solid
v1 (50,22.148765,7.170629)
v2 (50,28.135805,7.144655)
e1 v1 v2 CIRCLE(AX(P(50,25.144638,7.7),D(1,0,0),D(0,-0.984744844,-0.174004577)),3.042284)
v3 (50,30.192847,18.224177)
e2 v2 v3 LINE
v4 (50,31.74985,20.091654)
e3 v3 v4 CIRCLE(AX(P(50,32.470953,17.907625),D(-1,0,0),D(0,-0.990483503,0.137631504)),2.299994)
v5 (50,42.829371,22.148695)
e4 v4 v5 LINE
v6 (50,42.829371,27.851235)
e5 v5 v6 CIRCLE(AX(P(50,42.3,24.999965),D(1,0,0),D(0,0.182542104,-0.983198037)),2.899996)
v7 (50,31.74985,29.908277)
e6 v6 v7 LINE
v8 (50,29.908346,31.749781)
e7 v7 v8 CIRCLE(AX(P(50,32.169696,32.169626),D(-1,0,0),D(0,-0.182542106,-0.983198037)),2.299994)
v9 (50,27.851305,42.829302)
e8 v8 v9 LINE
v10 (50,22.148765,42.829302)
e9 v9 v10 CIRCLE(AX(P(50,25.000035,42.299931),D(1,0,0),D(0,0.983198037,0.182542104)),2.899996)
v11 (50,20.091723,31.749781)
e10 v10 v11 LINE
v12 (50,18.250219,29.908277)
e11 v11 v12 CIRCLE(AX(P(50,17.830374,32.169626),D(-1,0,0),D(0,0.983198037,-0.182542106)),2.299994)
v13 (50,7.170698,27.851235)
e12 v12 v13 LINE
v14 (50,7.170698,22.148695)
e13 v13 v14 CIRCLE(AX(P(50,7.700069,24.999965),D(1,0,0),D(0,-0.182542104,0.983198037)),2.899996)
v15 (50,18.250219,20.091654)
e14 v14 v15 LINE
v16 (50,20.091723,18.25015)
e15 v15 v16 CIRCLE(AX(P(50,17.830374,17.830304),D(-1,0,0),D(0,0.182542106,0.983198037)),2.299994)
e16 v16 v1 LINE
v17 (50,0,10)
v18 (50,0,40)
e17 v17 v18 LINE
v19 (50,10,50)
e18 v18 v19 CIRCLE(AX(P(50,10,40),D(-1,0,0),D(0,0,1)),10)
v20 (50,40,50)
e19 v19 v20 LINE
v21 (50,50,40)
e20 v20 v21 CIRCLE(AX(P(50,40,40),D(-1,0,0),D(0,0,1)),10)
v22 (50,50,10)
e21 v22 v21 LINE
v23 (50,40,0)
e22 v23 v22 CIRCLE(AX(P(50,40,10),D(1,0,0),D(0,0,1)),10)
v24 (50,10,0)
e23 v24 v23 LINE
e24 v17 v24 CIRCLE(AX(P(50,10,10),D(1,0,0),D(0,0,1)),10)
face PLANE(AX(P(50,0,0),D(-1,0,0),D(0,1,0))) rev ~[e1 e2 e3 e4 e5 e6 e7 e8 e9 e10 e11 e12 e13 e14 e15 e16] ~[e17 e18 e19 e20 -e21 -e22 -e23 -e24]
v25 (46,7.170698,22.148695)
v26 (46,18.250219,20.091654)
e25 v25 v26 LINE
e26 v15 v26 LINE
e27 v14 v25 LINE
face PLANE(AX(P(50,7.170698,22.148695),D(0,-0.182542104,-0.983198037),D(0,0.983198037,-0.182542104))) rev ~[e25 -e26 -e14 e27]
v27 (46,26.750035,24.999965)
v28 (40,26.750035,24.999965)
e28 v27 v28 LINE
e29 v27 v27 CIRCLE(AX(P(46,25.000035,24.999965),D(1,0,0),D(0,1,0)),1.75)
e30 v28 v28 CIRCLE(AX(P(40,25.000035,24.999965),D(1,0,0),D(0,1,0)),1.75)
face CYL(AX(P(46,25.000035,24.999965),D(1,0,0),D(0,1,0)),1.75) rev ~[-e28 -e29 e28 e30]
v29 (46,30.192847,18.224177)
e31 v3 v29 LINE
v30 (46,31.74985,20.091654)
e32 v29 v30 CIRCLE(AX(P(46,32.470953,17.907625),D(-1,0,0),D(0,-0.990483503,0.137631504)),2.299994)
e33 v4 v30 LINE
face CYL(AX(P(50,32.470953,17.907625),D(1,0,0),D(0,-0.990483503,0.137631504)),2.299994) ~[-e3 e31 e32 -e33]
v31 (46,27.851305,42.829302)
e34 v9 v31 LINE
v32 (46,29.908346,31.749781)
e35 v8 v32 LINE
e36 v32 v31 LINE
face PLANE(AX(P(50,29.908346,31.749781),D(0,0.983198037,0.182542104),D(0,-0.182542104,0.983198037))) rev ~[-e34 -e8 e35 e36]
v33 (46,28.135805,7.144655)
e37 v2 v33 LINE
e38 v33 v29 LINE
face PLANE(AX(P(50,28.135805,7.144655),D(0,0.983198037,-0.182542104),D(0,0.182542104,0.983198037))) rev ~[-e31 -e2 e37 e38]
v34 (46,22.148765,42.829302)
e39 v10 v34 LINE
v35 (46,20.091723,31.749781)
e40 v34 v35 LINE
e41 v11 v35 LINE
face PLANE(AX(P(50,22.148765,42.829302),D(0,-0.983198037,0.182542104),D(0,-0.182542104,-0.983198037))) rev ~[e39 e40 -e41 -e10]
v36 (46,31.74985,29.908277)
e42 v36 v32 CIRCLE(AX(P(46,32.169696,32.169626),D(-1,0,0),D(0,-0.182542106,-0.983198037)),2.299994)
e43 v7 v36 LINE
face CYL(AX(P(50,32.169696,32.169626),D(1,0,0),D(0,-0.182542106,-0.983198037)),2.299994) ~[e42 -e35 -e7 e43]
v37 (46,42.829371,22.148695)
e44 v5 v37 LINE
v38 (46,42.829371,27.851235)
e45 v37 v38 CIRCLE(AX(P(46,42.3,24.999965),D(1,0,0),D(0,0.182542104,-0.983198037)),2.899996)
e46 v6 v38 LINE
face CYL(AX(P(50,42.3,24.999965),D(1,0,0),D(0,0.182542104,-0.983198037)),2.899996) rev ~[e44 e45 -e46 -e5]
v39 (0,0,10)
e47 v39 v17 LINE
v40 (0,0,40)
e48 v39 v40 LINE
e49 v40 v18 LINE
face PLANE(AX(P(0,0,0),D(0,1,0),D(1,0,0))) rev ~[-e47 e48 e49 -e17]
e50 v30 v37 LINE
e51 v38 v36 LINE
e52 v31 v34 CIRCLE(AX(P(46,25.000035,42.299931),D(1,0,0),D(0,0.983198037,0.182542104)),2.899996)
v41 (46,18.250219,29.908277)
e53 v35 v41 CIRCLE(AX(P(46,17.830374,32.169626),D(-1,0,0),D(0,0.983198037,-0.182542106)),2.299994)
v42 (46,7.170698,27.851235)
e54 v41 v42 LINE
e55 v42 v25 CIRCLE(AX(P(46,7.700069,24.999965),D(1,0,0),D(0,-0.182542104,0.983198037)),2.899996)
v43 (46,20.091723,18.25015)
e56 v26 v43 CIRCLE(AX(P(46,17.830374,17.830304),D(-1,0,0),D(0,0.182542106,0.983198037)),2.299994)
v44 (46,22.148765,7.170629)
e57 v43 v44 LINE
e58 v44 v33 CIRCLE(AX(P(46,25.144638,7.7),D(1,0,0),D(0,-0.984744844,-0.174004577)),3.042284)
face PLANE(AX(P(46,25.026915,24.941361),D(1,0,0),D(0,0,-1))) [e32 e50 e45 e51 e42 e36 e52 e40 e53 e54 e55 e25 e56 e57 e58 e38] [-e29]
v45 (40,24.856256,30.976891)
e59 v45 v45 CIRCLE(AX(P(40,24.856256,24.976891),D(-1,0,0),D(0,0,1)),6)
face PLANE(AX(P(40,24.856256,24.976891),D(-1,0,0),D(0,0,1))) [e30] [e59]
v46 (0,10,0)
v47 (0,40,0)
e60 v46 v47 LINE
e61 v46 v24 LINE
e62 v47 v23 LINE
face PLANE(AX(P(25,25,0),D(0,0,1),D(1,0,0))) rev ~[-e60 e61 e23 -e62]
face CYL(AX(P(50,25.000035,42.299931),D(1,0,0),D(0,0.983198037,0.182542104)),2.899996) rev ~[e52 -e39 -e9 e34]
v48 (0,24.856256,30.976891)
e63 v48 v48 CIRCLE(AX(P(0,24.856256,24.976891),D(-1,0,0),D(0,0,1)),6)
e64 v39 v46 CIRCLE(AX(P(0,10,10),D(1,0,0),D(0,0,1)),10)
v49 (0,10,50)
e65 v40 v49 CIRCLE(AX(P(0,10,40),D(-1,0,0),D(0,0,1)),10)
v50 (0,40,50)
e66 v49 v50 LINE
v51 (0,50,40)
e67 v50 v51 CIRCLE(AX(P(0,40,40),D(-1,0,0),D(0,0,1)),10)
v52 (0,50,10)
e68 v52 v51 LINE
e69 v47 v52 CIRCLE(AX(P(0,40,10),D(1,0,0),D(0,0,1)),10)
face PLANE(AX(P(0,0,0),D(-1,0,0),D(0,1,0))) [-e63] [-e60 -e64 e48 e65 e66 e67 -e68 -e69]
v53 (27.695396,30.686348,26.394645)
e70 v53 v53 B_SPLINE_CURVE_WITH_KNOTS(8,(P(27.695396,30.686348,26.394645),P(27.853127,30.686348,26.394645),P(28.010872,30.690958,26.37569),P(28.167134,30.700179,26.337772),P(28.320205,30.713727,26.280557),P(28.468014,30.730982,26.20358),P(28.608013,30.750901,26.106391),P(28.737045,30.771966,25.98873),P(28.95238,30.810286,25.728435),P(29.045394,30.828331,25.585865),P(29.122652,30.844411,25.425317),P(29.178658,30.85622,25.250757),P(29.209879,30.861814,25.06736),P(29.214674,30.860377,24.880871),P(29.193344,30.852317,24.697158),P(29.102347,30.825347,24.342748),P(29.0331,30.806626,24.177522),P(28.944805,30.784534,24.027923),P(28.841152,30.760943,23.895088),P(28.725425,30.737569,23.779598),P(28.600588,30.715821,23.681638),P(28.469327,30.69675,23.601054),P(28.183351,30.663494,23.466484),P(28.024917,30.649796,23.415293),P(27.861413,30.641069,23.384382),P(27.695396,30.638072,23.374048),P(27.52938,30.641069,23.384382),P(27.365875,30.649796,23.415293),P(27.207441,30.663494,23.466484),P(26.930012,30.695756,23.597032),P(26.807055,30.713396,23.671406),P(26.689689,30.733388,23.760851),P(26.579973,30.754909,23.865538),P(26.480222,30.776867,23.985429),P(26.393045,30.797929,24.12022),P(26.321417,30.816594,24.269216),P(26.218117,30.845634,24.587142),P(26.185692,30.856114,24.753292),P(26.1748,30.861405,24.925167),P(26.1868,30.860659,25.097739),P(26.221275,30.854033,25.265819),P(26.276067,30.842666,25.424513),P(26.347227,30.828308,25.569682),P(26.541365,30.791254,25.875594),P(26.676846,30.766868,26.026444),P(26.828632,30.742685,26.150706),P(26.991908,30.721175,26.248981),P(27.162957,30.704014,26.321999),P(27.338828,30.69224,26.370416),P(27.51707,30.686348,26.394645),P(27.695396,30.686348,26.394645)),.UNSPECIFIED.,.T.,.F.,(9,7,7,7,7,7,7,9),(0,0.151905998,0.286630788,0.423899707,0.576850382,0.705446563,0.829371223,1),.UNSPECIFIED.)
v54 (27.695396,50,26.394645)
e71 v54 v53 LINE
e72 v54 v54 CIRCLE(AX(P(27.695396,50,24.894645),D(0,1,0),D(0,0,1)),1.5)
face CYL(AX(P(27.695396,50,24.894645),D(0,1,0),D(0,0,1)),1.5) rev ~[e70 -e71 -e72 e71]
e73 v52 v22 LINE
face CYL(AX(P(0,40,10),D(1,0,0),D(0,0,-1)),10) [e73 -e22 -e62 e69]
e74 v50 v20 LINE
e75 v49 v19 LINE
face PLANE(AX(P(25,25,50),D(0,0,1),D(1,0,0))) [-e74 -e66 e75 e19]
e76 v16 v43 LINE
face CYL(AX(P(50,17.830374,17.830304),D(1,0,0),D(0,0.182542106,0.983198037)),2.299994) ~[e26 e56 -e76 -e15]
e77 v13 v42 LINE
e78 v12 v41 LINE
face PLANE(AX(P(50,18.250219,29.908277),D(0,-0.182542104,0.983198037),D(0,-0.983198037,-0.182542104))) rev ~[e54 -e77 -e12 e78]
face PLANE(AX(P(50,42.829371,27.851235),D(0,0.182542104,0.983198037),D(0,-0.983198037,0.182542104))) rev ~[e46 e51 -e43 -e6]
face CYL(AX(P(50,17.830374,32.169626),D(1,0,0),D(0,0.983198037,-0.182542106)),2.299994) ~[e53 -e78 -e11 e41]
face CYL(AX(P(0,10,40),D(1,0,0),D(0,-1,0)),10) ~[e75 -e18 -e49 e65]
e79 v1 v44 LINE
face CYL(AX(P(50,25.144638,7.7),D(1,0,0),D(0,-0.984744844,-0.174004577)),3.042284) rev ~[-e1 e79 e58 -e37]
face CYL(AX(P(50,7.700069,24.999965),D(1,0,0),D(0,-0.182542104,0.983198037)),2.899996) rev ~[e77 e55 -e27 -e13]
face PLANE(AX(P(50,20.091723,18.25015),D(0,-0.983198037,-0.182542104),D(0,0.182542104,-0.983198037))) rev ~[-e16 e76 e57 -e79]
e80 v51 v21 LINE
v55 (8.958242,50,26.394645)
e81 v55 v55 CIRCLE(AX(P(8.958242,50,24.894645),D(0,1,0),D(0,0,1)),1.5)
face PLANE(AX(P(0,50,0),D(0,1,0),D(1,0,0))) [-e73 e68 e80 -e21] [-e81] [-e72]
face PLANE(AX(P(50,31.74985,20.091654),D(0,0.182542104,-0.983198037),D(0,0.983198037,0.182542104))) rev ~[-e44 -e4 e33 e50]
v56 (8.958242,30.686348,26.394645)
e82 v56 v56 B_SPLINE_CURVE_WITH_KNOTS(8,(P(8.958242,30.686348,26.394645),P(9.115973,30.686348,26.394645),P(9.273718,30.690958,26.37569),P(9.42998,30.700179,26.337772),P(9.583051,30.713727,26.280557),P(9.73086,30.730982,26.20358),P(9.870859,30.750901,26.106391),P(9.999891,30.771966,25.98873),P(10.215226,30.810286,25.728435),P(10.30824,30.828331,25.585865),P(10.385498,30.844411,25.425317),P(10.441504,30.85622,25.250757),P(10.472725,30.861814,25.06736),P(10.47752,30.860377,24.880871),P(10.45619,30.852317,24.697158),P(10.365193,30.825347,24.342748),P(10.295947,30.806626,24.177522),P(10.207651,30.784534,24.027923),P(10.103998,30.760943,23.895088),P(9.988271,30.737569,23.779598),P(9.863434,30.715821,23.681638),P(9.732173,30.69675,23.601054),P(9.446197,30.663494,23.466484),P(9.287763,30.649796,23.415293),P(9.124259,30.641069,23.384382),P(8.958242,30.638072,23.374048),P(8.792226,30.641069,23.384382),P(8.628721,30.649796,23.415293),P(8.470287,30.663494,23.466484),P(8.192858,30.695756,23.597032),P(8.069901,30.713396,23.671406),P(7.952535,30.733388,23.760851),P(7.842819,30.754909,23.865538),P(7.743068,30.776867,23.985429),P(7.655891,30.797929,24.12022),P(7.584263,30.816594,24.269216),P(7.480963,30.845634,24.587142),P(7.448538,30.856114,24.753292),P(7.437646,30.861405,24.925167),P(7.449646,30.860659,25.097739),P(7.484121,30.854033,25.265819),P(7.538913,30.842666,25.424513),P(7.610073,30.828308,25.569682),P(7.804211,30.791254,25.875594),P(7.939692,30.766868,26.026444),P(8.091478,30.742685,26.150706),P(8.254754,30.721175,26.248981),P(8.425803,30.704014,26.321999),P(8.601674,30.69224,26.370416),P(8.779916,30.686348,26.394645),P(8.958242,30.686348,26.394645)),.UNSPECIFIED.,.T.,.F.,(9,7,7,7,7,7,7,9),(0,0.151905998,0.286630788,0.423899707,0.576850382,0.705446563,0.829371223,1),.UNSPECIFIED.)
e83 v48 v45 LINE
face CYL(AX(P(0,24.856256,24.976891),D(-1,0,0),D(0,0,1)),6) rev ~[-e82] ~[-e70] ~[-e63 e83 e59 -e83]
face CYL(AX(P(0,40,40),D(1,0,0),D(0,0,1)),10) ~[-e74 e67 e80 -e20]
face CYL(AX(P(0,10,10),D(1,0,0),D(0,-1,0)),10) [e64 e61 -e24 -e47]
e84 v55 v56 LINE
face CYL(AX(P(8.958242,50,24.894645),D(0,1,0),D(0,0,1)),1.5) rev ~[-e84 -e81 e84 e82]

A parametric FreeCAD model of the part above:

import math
import FreeCAD as App
import Part
import Sketcher
from FreeCAD import Vector


def edges_at(feature, points):
    """Names of the edges that pass closest to the given points."""
    edges = feature.Shape.Edges
    near = lambda p: min(range(len(edges)), key=lambda i: edges[i].distToShape(Part.Vertex(*p))[0])
    return sorted({f"Edge{near(p) + 1}" for p in points})


def add_polygon(sketch, points):
    """Adds a closed chain of lines whose ends are joined by coincident constraints."""
    first, n = sketch.GeometryCount, len(points)
    for a, b in zip(points, points[1:] + points[:1]):
        sketch.addGeometry(Part.LineSegment(App.Vector(*a, 0), App.Vector(*b, 0)), False)
    for i in range(n):
        sketch.addConstraint(Sketcher.Constraint("Coincident", first + i, 2, first + (i + 1) % n, 1))

doc = App.newDocument("Part")
params = doc.addObject("Spreadsheet::Sheet", "Params")
for row, (alias, value) in enumerate([
    ("sketch1_width", "50 mm"),
    ("pad1_length", "50 mm"),
    ("sketch2_diameter", "12 mm"),
    ("pocket1_length", "40 mm"),
    ("fillet_radius", "10 mm"),
    ("sketch3_diameter", "3 mm"),
    ("pocket2_length", "21 mm"),
    ("pocket3_length", "4 mm"),
    ("sketch5_diameter", "3.5 mm"),
    ("pocket4_length", "90 mm"),
], start=1):
    params.set(f"A{row}", alias)
    params.set(f"B{row}", "=" + value)
    params.setAlias(f"B{row}", alias)

body = doc.addObject("PartDesign::Body", "Body")

sketch1 = body.newObject("Sketcher::SketchObject", "Sketch")
sketch1.AttachmentSupport = (doc.getObject("XY_Plane"), [""])
sketch1.MapMode = "FlatFace"
add_polygon(sketch1, [(0, 50), (0, 0), (50, 0), (50, 50)])
sketch1.addConstraint([
    Sketcher.Constraint("Vertical", 0),
    Sketcher.Constraint("Horizontal", 1),
    Sketcher.Constraint("Vertical", 2),
    Sketcher.Constraint("Horizontal", 3),
    Sketcher.Constraint("Coincident", 0, 2, -1, 1),
    Sketcher.Constraint("Equal", 3, 0),
    Sketcher.Constraint("DistanceX", 1, 1, 1, 2, 50.0),
])
sketch1.setExpression("Constraints[10]", "Params.sketch1_width")
pad1 = body.newObject("PartDesign::Pad", "Pad")
pad1.Profile = sketch1
pad1.setExpression("Length", "Params.pad1_length")

sketch2 = body.newObject("Sketcher::SketchObject", "Sketch001")
sketch2.AttachmentSupport = (doc.getObject("YZ_Plane"), [""])
sketch2.MapMode = "FlatFace"
sketch2.addGeometry(Part.Circle(Vector(25, 25, 0), Vector(0, 0, 1), 6), False)
sketch2.addConstraint([
    Sketcher.Constraint("Diameter", 0, 12.0),
    Sketcher.Constraint("DistanceY", -1, 1, 0, 3, 24.976891),
    Sketcher.Constraint("DistanceX", -1, 1, 0, 3, 24.856256),
])
sketch2.setExpression("Constraints[0]", "Params.sketch2_diameter")
pocket1 = body.newObject("PartDesign::Pocket", "Pocket")
pocket1.Profile = sketch2
pocket1.setExpression("Length", "Params.pocket1_length")
pocket1.Reversed = True
doc.recompute()

fillet = body.newObject("PartDesign::Fillet", "Fillet")
fillet.Base = (pocket1, edges_at(pocket1, [
    (25, 50, 50),
    (25, 50, 0),
    (25, 0, 0),
    (25, 0, 50),
]))
fillet.setExpression("Radius", "Params.fillet_radius")

sketch3 = body.newObject("Sketcher::SketchObject", "Sketch002")
sketch3.AttachmentSupport = (doc.getObject("XZ_Plane"), [""])
sketch3.MapMode = "FlatFace"
sketch3.AttachmentOffset = App.Placement(Vector(0, 0, -50), App.Rotation())
sketch3.addGeometry([
    Part.Circle(Vector(9, 24.9, 0), Vector(0, 0, 1), 1.5),
    Part.Circle(Vector(27.7, 24.9, 0), Vector(0, 0, 1), 1.5),
], False)
sketch3.addConstraint([
    Sketcher.Constraint("Equal", 0, 1),
    Sketcher.Constraint("Horizontal", 0, 3, 1, 3),
    Sketcher.Constraint("Diameter", 0, 3.0),
    Sketcher.Constraint("DistanceX", -1, 1, 0, 3, 8.958242),
    Sketcher.Constraint("DistanceY", -1, 1, 0, 3, 24.894645),
    Sketcher.Constraint("DistanceX", -1, 1, 1, 3, 27.695396),
])
sketch3.setExpression("Constraints[2]", "Params.sketch3_diameter")
pocket2 = body.newObject("PartDesign::Pocket", "Pocket001")
pocket2.Profile = sketch3
pocket2.setExpression("Length", "Params.pocket2_length")
pocket2.Reversed = True

sketch4 = body.newObject("Sketcher::SketchObject", "Sketch003")
sketch4.AttachmentSupport = (doc.getObject("YZ_Plane"), [""])
sketch4.MapMode = "FlatFace"
sketch4.AttachmentOffset = App.Placement(Vector(0, 0, 50), App.Rotation())
sketch4.addGeometry([
    Part.LineSegment(Vector(28.1, 7.1, 0), Vector(30.2, 18.2, 0)),
    Part.ArcOfCircle(Part.Circle(Vector(32.5, 17.9, 0), Vector(0, 0, 1), 2.3), math.radians(108), math.radians(172)),
    Part.LineSegment(Vector(31.7, 20.1, 0), Vector(42.8, 22.1, 0)),
    Part.ArcOfCircle(Part.Circle(Vector(42.3, 25, 0), Vector(0, 0, 1), 2.9), math.radians(-79), math.radians(79)),
    Part.LineSegment(Vector(42.8, 27.9, 0), Vector(31.7, 29.9, 0)),
    Part.ArcOfCircle(Part.Circle(Vector(32.2, 32.2, 0), Vector(0, 0, 1), 2.3), math.radians(-169), math.radians(-101)),
    Part.LineSegment(Vector(29.9, 31.7, 0), Vector(27.9, 42.8, 0)),
    Part.ArcOfCircle(Part.Circle(Vector(25, 42.3, 0), Vector(0, 0, 1), 2.9), math.radians(11), math.radians(169)),
    Part.LineSegment(Vector(22.1, 42.8, 0), Vector(20.1, 31.7, 0)),
    Part.ArcOfCircle(Part.Circle(Vector(17.8, 32.2, 0), Vector(0, 0, 1), 2.3), math.radians(-79), math.radians(-11)),
    Part.LineSegment(Vector(18.3, 29.9, 0), Vector(7.2, 27.9, 0)),
    Part.ArcOfCircle(Part.Circle(Vector(7.7, 25, 0), Vector(0, 0, 1), 2.9), math.radians(101), math.radians(259)),
    Part.LineSegment(Vector(7.2, 22.1, 0), Vector(18.3, 20.1, 0)),
    Part.ArcOfCircle(Part.Circle(Vector(17.8, 17.8, 0), Vector(0, 0, 1), 2.3), math.radians(11), math.radians(79)),
    Part.LineSegment(Vector(20.1, 18.3, 0), Vector(22.1, 7.2, 0)),
    Part.ArcOfCircle(Part.Circle(Vector(25.1, 7.7, 0), Vector(0, 0, 1), 3), math.radians(-170), math.radians(-11)),
], False)
sketch4.addConstraint([
    Sketcher.Constraint("Coincident", 0, 2, 1, 2),
    Sketcher.Constraint("Coincident", 1, 1, 2, 1),
    Sketcher.Constraint("Tangent", 2, 2, 3, 1),
    Sketcher.Constraint("Tangent", 3, 2, 4, 1),
    Sketcher.Constraint("Tangent", 4, 2, 5, 2),
    Sketcher.Constraint("Tangent", 5, 1, 6, 1),
    Sketcher.Constraint("Tangent", 6, 2, 7, 1),
    Sketcher.Constraint("Tangent", 7, 2, 8, 1),
    Sketcher.Constraint("Tangent", 8, 2, 9, 2),
    Sketcher.Constraint("Tangent", 9, 1, 10, 1),
    Sketcher.Constraint("Tangent", 10, 2, 11, 1),
    Sketcher.Constraint("Tangent", 11, 2, 12, 1),
    Sketcher.Constraint("Tangent", 12, 2, 13, 2),
    Sketcher.Constraint("Tangent", 13, 1, 14, 1),
    Sketcher.Constraint("Coincident", 14, 2, 15, 1),
    Sketcher.Constraint("Tangent", 15, 2, 0, 1),
    Sketcher.Constraint("Equal", 1, 5),
    Sketcher.Constraint("Equal", 3, 7),
    Sketcher.Constraint("Equal", 5, 9),
    Sketcher.Constraint("Equal", 7, 11),
    Sketcher.Constraint("Equal", 9, 13),
    Sketcher.Constraint("Perpendicular", 0, 4),
    Sketcher.Constraint("Perpendicular", 2, 6),
    Sketcher.Constraint("Perpendicular", 4, 8),
    Sketcher.Constraint("Perpendicular", 6, 10),
    Sketcher.Constraint("Perpendicular", 8, 12),
    Sketcher.Constraint("Perpendicular", 10, 14),
    Sketcher.Constraint("Horizontal", 5, 3, 9, 3),
    Sketcher.Constraint("Horizontal", 3, 3, 11, 3),
    Sketcher.Constraint("Horizontal", 6, 2, 7, 2),
    Sketcher.Constraint("Horizontal", 1, 1, 12, 2),
    Sketcher.Constraint("Vertical", 9, 3, 13, 3),
    Sketcher.Constraint("Vertical", 7, 2, 14, 2),
    Sketcher.Constraint("Equal", 0, 2),
    Sketcher.Constraint("Equal", 4, 6),
    Sketcher.Constraint("DistanceX", -1, 1, 3, 3, 42.3),
    Sketcher.Constraint("DistanceY", -1, 1, 15, 3, 7.7),
    Sketcher.Constraint("Radius", 1, 2.299994),
    Sketcher.Constraint("Radius", 3, 2.899996),
    Sketcher.Constraint("Radius", 15, 3.042284),
    Sketcher.Constraint("DistanceY", 1, 3, 5, 3, 14.262002),
    Sketcher.Constraint("DistanceY", 15, 2, 1, 1, 12.946999),
    Sketcher.Constraint("DistanceY", 0, 2, 4, 2, 11.6841),
])
pocket3 = body.newObject("PartDesign::Pocket", "Pocket002")
pocket3.Profile = sketch4
pocket3.setExpression("Length", "Params.pocket3_length")

sketch5 = body.newObject("Sketcher::SketchObject", "Sketch004")
sketch5.AttachmentSupport = (doc.getObject("YZ_Plane"), [""])
sketch5.MapMode = "FlatFace"
sketch5.AttachmentOffset = App.Placement(Vector(0, 0, 46), App.Rotation())
sketch5.addGeometry(Part.Circle(Vector(25, 25, 0), Vector(0, 0, 1), 1.8), False)
sketch5.addConstraint([
    Sketcher.Constraint("Diameter", 0, 3.5),
    Sketcher.Constraint("DistanceX", -1, 1, 0, 3, 25.000035),
    Sketcher.Constraint("DistanceY", -1, 1, 0, 3, 24.999965),
])
sketch5.setExpression("Constraints[0]", "Params.sketch5_diameter")
pocket4 = body.newObject("PartDesign::Pocket", "Pocket003")
pocket4.Profile = sketch5
pocket4.setExpression("Length", "Params.pocket4_length")

doc.recompute()
